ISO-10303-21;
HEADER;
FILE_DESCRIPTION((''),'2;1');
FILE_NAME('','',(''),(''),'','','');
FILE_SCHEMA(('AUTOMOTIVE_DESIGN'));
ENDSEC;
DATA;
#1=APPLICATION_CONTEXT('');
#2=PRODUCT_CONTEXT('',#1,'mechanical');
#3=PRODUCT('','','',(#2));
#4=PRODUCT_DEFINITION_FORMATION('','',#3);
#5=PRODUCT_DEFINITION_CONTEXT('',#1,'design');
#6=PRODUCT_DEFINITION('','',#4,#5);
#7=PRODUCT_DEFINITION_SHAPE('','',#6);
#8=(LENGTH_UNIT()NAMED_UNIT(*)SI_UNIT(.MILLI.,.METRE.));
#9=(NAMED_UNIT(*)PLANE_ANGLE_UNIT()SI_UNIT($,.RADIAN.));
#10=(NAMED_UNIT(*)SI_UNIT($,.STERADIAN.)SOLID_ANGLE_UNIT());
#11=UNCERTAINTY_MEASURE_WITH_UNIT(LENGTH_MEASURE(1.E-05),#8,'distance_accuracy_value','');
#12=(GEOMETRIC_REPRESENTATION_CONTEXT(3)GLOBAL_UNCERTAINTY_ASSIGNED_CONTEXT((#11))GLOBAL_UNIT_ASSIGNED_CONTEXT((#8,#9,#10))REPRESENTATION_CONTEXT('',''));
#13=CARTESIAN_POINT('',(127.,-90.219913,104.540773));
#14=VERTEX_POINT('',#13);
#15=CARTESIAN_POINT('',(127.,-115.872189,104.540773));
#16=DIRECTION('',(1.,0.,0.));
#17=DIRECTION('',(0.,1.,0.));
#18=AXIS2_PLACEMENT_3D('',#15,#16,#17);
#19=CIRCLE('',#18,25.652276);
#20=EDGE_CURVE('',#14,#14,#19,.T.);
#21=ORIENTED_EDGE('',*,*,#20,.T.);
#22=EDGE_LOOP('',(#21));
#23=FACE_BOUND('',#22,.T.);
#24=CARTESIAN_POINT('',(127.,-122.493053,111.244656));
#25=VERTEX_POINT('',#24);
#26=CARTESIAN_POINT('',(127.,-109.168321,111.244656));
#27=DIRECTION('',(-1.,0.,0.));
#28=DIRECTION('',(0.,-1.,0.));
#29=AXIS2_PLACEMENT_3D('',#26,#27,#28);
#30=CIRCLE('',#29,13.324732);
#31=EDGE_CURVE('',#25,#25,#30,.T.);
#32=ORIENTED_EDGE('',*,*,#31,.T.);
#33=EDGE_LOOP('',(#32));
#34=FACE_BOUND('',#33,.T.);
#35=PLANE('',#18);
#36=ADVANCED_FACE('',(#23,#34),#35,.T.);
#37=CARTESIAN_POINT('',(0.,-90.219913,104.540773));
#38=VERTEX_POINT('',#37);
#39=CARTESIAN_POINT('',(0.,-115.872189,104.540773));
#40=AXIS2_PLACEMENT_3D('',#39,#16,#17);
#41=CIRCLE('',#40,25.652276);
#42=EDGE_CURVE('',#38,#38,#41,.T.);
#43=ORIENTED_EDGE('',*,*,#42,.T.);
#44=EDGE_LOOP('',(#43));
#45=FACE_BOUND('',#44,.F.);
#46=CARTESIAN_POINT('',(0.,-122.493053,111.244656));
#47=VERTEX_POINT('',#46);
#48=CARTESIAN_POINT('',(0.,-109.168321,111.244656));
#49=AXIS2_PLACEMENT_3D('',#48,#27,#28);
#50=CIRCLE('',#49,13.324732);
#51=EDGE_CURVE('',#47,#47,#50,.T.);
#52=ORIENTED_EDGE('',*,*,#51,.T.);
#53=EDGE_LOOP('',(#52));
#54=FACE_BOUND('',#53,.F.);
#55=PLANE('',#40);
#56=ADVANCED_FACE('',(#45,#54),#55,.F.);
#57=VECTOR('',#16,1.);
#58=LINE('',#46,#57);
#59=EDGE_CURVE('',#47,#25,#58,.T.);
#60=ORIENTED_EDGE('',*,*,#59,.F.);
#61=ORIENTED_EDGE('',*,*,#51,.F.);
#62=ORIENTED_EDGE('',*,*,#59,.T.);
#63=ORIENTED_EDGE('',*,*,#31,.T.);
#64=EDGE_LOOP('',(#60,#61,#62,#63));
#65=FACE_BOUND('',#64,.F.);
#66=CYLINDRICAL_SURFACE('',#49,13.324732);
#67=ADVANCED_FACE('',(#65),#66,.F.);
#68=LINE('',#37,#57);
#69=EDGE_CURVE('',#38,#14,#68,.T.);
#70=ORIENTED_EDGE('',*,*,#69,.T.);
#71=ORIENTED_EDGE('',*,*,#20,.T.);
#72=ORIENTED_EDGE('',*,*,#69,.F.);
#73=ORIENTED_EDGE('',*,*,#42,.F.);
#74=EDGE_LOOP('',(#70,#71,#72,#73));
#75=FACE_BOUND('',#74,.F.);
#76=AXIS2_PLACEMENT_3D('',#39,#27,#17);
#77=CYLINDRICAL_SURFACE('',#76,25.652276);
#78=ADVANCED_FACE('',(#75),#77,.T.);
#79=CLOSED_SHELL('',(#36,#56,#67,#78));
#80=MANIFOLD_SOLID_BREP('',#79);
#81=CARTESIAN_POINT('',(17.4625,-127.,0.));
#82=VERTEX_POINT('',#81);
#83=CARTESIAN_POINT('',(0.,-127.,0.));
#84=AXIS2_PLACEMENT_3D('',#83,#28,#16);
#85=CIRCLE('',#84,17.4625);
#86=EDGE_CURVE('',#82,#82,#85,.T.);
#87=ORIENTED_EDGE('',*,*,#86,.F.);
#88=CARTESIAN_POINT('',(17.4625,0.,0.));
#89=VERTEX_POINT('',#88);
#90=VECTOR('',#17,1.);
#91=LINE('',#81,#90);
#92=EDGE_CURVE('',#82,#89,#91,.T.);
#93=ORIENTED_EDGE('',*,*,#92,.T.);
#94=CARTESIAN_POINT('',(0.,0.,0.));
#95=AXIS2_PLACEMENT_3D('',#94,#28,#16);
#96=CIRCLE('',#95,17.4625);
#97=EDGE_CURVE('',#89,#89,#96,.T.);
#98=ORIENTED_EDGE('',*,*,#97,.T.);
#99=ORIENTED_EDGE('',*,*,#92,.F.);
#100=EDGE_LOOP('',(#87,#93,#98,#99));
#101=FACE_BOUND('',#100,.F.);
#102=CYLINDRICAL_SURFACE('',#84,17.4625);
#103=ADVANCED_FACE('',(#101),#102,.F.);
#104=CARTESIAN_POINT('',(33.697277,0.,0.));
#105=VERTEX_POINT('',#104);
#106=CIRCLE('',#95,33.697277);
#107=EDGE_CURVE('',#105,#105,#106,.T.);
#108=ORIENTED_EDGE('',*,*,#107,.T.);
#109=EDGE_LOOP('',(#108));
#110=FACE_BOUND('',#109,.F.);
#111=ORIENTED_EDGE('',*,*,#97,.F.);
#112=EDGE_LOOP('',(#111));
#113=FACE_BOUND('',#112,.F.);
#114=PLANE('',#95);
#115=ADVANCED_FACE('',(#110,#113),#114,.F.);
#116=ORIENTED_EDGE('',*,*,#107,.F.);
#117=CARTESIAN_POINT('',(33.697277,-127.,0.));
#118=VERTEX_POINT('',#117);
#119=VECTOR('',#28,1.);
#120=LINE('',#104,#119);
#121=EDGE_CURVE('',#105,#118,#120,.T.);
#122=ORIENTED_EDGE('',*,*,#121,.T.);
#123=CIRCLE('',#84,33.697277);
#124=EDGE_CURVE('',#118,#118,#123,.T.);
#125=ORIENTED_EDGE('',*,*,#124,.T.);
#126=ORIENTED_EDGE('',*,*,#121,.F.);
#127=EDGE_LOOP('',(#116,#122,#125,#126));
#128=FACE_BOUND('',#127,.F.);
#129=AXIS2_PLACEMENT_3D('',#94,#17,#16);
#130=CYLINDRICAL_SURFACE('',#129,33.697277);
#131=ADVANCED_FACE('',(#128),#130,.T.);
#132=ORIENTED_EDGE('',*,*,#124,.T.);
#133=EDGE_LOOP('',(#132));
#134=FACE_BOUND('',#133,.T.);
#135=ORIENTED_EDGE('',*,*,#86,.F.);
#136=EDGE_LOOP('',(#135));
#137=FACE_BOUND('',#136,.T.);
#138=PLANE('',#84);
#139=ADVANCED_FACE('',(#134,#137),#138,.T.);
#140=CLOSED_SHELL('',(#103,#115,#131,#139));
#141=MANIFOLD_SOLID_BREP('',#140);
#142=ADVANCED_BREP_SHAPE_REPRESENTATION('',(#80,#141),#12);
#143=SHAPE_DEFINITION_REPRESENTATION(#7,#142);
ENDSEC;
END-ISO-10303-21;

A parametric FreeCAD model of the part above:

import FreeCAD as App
import Part
import Sketcher

V = App.Vector
Q = App.Units.Quantity

doc = App.newDocument("Part")
body = doc.addObject("PartDesign::Body", "Body")

# Sketch on XZ plane
sketch1 = doc.addObject("Sketcher::SketchObject", "Sketch")
body.addObject(sketch1)
sketch1.AttachmentSupport = (doc.XZ_Plane, [""])
sketch1.MapMode = "FlatFace"
sketch1.addGeometry(Part.Circle(V(0, 0, 0), V(0, 0, 1), 33.697277), False)
sketch1.addConstraint(Sketcher.Constraint("Coincident", 0, 3, -1, 1))
sketch1.addConstraint(Sketcher.Constraint("Diameter", 0, Q("67.394554 mm")))
pad1 = doc.addObject("PartDesign::Pad", "Pad")
body.addObject(pad1)
pad1.Profile = sketch1
pad1.Length = Q("5 in")

# Sketch on XZ plane
sketch2 = doc.addObject("Sketcher::SketchObject", "Sketch001")
body.addObject(sketch2)
sketch2.AttachmentSupport = (doc.XZ_Plane, [""])
sketch2.MapMode = "FlatFace"
sketch2.AttachmentOffset = App.Placement(V(0, 0, 5 * 25.4), App.Rotation())
sketch2.addGeometry(Part.Circle(V(0, 0, 0), V(0, 0, 1), 17.4625), False)
sketch2.addConstraint(Sketcher.Constraint("Coincident", 0, 3, -1, 1))
sketch2.addConstraint(Sketcher.Constraint("Diameter", 0, Q("1.375 in")))
pocket1 = doc.addObject("PartDesign::Pocket", "Pocket")
body.addObject(pocket1)
pocket1.Profile = sketch2
pocket1.Length = Q("5.76 in")
body2 = doc.addObject("PartDesign::Body", "Body001")

# Sketch on YZ plane
sketch3 = doc.addObject("Sketcher::SketchObject", "Sketch002")
body2.addObject(sketch3)
sketch3.AttachmentSupport = (doc.getObject("YZ_Plane001"), [""])
sketch3.MapMode = "FlatFace"
sketch3.addGeometry(Part.Circle(V(-115.872189, 104.540773, 0), V(0, 0, 1), 25.652276), False)
sketch3.addConstraint(Sketcher.Constraint("Diameter", 0, Q("51.304552 mm")))
sketch3.addConstraint(Sketcher.Constraint("DistanceX", 0, 3, -1, 1, Q("115.872189 mm")))
sketch3.addConstraint(Sketcher.Constraint("DistanceY", -1, 1, 0, 3, Q("104.540773 mm")))
pad2 = doc.addObject("PartDesign::Pad", "Pad001")
body2.addObject(pad2)
pad2.Profile = sketch3
pad2.Length = Q("5 in")

# Sketch on YZ plane
sketch4 = doc.addObject("Sketcher::SketchObject", "Sketch003")
body2.addObject(sketch4)
sketch4.AttachmentSupport = (doc.getObject("YZ_Plane001"), [""])
sketch4.MapMode = "FlatFace"
sketch4.addGeometry(Part.Circle(V(-109.168321, 111.244656, 0), V(0, 0, 1), 13.324732), False)
sketch4.addConstraint(Sketcher.Constraint("Diameter", 0, Q("26.649464 mm")))
sketch4.addConstraint(Sketcher.Constraint("DistanceX", 0, 3, -1, 1, Q("109.168321 mm")))
sketch4.addConstraint(Sketcher.Constraint("DistanceY", -1, 1, 0, 3, Q("111.244656 mm")))
pocket2 = doc.addObject("PartDesign::Pocket", "Pocket001")
body2.addObject(pocket2)
pocket2.Profile = sketch4
pocket2.Length = Q("5 in")
pocket2.Reversed = True

doc.recompute()
